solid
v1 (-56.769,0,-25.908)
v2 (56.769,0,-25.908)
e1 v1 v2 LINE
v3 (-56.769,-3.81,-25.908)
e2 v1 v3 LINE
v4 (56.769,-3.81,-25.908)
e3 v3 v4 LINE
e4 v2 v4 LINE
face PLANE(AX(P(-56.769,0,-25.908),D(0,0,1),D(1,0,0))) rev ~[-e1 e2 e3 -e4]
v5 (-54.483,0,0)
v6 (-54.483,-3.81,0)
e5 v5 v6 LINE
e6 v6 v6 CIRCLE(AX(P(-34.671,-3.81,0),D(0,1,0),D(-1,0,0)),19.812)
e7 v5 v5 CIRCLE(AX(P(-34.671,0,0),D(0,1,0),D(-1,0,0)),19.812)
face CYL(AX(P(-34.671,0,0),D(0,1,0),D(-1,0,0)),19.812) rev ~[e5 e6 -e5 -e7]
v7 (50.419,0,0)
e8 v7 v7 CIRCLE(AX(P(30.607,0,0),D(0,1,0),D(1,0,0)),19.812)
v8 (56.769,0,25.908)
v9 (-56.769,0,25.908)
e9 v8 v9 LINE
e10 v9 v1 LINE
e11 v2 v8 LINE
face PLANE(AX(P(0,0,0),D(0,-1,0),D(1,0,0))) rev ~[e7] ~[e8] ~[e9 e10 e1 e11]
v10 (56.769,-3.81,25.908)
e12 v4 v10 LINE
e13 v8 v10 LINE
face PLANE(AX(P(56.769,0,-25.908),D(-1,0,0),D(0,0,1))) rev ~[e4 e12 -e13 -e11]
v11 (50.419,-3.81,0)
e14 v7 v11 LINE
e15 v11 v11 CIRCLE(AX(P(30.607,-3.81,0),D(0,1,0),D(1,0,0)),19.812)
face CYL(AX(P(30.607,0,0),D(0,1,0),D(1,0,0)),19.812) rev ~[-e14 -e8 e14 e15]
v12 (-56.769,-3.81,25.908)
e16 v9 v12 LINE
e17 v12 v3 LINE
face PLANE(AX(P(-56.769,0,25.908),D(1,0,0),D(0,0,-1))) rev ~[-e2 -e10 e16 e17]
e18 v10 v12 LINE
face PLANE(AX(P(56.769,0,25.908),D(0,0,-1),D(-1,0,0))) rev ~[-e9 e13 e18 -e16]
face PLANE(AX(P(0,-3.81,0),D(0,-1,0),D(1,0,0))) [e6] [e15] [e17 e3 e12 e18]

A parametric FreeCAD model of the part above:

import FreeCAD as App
import Part
import Sketcher
from FreeCAD import Vector
Q = App.Units.Quantity


def add_polygon(sketch, points):
    """Adds a closed chain of lines whose ends are joined by coincident constraints."""
    first, n = sketch.GeometryCount, len(points)
    for a, b in zip(points, points[1:] + points[:1]):
        sketch.addGeometry(Part.LineSegment(App.Vector(*a, 0), App.Vector(*b, 0)), False)
    for i in range(n):
        sketch.addConstraint(Sketcher.Constraint("Coincident", first + i, 2, first + (i + 1) % n, 1))

doc = App.newDocument("Part")
body = doc.addObject("PartDesign::Body", "Body")

# Sketch on XZ plane
sketch1 = doc.addObject("Sketcher::SketchObject", "Sketch")
body.addObject(sketch1)
sketch1.AttachmentSupport = (doc.XZ_Plane, [""])
sketch1.MapMode = "FlatFace"
add_polygon(sketch1, [(-57, -26), (57, -26), (57, 26), (-57, 26)])  # lines 0-3
sketch1.addGeometry(Part.Circle(Vector(31, 0, 0), Vector(0, 0, 1), 20), False)  # 4
sketch1.addGeometry(Part.Circle(Vector(-35, 0, 0), Vector(0, 0, 1), 20), False)  # 5
sketch1.addConstraint([
    Sketcher.Constraint("Horizontal", 0),
    Sketcher.Constraint("Vertical", 1),
    Sketcher.Constraint("Horizontal", 2),
    Sketcher.Constraint("Vertical", 3),
    Sketcher.Constraint("Equal", 4, 5),
    Sketcher.Constraint("Symmetric", 0, 2, 2, 2, -1, 1),
    Sketcher.Constraint("PointOnObject", 4, 3, -1),
    Sketcher.Constraint("PointOnObject", 5, 3, -1),
    Sketcher.Constraint("Diameter", 4, Q("1.56 in")),
    Sketcher.Constraint("DistanceX", 0, 1, 0, 2, Q("4.47 in")),
    Sketcher.Constraint("DistanceY", 1, 1, 1, 2, Q("2.04 in")),
    Sketcher.Constraint("DistanceX", 5, 3, 0, 2, Q("3.6 in")),
    Sketcher.Constraint("DistanceX", 5, 3, 4, 3, Q("2.57 in")),
])
pad1 = doc.addObject("PartDesign::Pad", "Pad")
body.addObject(pad1)
pad1.Profile = sketch1
pad1.Length = Q("0.15 in")

doc.recompute()
